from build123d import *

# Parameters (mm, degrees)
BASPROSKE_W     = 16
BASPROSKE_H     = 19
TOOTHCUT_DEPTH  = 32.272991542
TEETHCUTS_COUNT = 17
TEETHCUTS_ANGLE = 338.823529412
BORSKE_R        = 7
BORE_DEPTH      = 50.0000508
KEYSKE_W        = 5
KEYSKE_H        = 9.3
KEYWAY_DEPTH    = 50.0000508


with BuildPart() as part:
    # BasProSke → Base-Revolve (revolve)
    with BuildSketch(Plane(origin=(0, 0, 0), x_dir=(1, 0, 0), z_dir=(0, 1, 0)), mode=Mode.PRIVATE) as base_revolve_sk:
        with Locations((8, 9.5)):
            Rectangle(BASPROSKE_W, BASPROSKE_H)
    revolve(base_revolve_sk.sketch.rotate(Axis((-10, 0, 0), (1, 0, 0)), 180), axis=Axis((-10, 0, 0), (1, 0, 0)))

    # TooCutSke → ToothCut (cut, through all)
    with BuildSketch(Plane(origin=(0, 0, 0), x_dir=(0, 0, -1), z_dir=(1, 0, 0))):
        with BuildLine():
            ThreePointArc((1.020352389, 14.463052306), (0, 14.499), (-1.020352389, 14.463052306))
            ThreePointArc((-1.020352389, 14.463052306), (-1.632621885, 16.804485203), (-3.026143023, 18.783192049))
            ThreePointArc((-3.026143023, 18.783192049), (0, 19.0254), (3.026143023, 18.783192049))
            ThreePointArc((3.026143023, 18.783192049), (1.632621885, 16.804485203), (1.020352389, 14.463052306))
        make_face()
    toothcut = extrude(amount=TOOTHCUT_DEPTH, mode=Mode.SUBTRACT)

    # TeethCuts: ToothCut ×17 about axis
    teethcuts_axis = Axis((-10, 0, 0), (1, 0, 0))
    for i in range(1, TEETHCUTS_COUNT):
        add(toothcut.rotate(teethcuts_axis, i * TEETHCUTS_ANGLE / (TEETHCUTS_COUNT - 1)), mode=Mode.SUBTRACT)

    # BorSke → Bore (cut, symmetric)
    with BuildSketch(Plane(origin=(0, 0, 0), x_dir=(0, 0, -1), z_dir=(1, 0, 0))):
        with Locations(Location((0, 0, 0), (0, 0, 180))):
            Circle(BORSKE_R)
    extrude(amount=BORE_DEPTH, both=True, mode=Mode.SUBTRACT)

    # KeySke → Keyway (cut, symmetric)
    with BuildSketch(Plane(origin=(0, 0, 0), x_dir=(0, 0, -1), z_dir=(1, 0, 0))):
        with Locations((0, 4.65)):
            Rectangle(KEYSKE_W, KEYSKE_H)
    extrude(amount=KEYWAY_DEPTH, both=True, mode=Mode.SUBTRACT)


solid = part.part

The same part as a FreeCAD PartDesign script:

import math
import FreeCAD as App
import Part
import Sketcher
from FreeCAD import Vector


def add_polygon(sketch, points):
    """Adds a closed chain of lines whose ends are joined by coincident constraints."""
    first, n = sketch.GeometryCount, len(points)
    for a, b in zip(points, points[1:] + points[:1]):
        sketch.addGeometry(Part.LineSegment(App.Vector(*a, 0), App.Vector(*b, 0)), False)
    for i in range(n):
        sketch.addConstraint(Sketcher.Constraint("Coincident", first + i, 2, first + (i + 1) % n, 1))

doc = App.newDocument("Part")
params = doc.addObject("Spreadsheet::Sheet", "Params")
for row, (alias, value) in enumerate([
    ("sketch1_width", "16 mm"),
    ("sketch1_height", "19 mm"),
    ("revolution_angle", "360 deg"),
    ("sketch2_radius", "6.8 mm"),
    ("sketch3_diameter", "14 mm"),
    ("pocket2_length", "100.000102 mm"),
    ("sketch4_height", "5 mm"),
    ("sketch4_width", "9.3 mm"),
    ("pocket3_length", "100.000102 mm"),
], start=1):
    params.set(f"A{row}", alias)
    params.set(f"B{row}", "=" + value)
    params.setAlias(f"B{row}", alias)

body = doc.addObject("PartDesign::Body", "Body")

sketch1 = doc.addObject("Sketcher::SketchObject", "Sketch")
body.addObject(sketch1)
sketch1.AttachmentSupport = (doc.XZ_Plane, [""])
sketch1.MapMode = "FlatFace"
add_polygon(sketch1, [(0, -19), (0, 0), (16, 0), (16, -19)])
sketch1.addConstraint([
    Sketcher.Constraint("Vertical", 0),
    Sketcher.Constraint("Horizontal", 1),
    Sketcher.Constraint("Vertical", 2),
    Sketcher.Constraint("Horizontal", 3),
    Sketcher.Constraint("Coincident", 0, 2, -1, 1),
    Sketcher.Constraint("DistanceX", 1, 1, 1, 2, 16.0),
    Sketcher.Constraint("DistanceY", 0, 1, 0, 2, 19.0),
])
sketch1.setExpression("Constraints[9]", "Params.sketch1_width")
sketch1.setExpression("Constraints[10]", "Params.sketch1_height")
revolution = doc.addObject("PartDesign::Revolution", "Revolution")
body.addObject(revolution)
revolution.Profile = sketch1
revolution.ReferenceAxis = (sketch1, ["H_Axis"])
revolution.setExpression("Angle", "Params.revolution_angle")

sketch2 = doc.addObject("Sketcher::SketchObject", "Sketch001")
body.addObject(sketch2)
sketch2.AttachmentSupport = (doc.YZ_Plane, [""])
sketch2.MapMode = "FlatFace"
sketch2.addGeometry([
    Part.ArcOfCircle(Part.Circle(Vector(0, 0, 0), Vector(0, 0, 1), 14.5), math.radians(-4.04), math.radians(4.04)),
    Part.ArcOfCircle(Part.Circle(Vector(13.9, -7.8, 0), Vector(0, 0, 1), 6.8), math.radians(45), math.radians(86)),
    Part.ArcOfCircle(Part.Circle(Vector(0, 0, 0), Vector(0, 0, 1), 19), math.radians(-9.15), math.radians(9.15)),
    Part.ArcOfCircle(Part.Circle(Vector(13.9, 7.8, 0), Vector(0, 0, 1), 6.8), math.radians(-86), math.radians(-45)),
], False)
sketch2.addConstraint([
    Sketcher.Constraint("Coincident", 0, 1, 1, 2),
    Sketcher.Constraint("Coincident", 1, 1, 2, 1),
    Sketcher.Constraint("Coincident", 2, 2, 3, 2),
    Sketcher.Constraint("Coincident", 3, 1, 0, 2),
    Sketcher.Constraint("Coincident", 0, 3, -1, 1),
    Sketcher.Constraint("Coincident", 2, 3, -1, 1),
    Sketcher.Constraint("Equal", 1, 3),
    Sketcher.Constraint("Symmetric", 1, 3, 3, 3, -1),
    Sketcher.Constraint("Radius", 1, 6.8),
    Sketcher.Constraint("Radius", 0, 14.499),
    Sketcher.Constraint("Radius", 2, 19.0254),
    Sketcher.Constraint("DistanceY", 0, 1, 3, 3, 8.820629),
    Sketcher.Constraint("DistanceX", 0, 1, 1, 1, 4.32014),
])
sketch2.setExpression("Constraints[8]", "Params.sketch2_radius")
pocket1 = doc.addObject("PartDesign::Pocket", "Pocket")
body.addObject(pocket1)
pocket1.Profile = sketch2
pocket1.Type = "ThroughAll"
pocket1.Reversed = True
doc.recompute()

polarpattern = doc.addObject("PartDesign::PolarPattern", "PolarPattern")
body.addObject(polarpattern)
polarpattern.Originals = [pocket1]
polarpattern.Axis = (doc.X_Axis, [""])
polarpattern.Angle = 360
polarpattern.Occurrences = 17
body.Tip = polarpattern

sketch3 = doc.addObject("Sketcher::SketchObject", "Sketch002")
body.addObject(sketch3)
sketch3.AttachmentSupport = (doc.YZ_Plane, [""])
sketch3.MapMode = "FlatFace"
sketch3.addGeometry(Part.Circle(Vector(0, 0, 0), Vector(0, 0, 1), 7), False)
sketch3.addConstraint([
    Sketcher.Constraint("Coincident", 0, 3, -1, 1),
    Sketcher.Constraint("Diameter", 0, 14.0),
])
sketch3.setExpression("Constraints[1]", "Params.sketch3_diameter")
pocket2 = doc.addObject("PartDesign::Pocket", "Pocket001")
body.addObject(pocket2)
pocket2.Profile = sketch3
pocket2.setExpression("Length", "Params.pocket2_length")
pocket2.Midplane = True

sketch4 = doc.addObject("Sketcher::SketchObject", "Sketch003")
body.addObject(sketch4)
sketch4.AttachmentSupport = (doc.YZ_Plane, [""])
sketch4.MapMode = "FlatFace"
add_polygon(sketch4, [(9, 2), (0, 2), (0, -2), (9, -2)])
sketch4.addConstraint([
    Sketcher.Constraint("Horizontal", 0),
    Sketcher.Constraint("Vertical", 1),
    Sketcher.Constraint("Horizontal", 2),
    Sketcher.Constraint("Vertical", 3),
    Sketcher.Constraint("Symmetric", 0, 2, 1, 2, -1, 1),
    Sketcher.Constraint("DistanceY", 1, 2, 1, 1, 5.0),
    Sketcher.Constraint("DistanceX", 0, 2, 0, 1, 9.3),
])
sketch4.setExpression("Constraints[9]", "Params.sketch4_height")
sketch4.setExpression("Constraints[10]", "Params.sketch4_width")
pocket3 = doc.addObject("PartDesign::Pocket", "Pocket002")
body.addObject(pocket3)
pocket3.Profile = sketch4
pocket3.setExpression("Length", "Params.pocket3_length")
pocket3.Midplane = True

doc.recompute()
